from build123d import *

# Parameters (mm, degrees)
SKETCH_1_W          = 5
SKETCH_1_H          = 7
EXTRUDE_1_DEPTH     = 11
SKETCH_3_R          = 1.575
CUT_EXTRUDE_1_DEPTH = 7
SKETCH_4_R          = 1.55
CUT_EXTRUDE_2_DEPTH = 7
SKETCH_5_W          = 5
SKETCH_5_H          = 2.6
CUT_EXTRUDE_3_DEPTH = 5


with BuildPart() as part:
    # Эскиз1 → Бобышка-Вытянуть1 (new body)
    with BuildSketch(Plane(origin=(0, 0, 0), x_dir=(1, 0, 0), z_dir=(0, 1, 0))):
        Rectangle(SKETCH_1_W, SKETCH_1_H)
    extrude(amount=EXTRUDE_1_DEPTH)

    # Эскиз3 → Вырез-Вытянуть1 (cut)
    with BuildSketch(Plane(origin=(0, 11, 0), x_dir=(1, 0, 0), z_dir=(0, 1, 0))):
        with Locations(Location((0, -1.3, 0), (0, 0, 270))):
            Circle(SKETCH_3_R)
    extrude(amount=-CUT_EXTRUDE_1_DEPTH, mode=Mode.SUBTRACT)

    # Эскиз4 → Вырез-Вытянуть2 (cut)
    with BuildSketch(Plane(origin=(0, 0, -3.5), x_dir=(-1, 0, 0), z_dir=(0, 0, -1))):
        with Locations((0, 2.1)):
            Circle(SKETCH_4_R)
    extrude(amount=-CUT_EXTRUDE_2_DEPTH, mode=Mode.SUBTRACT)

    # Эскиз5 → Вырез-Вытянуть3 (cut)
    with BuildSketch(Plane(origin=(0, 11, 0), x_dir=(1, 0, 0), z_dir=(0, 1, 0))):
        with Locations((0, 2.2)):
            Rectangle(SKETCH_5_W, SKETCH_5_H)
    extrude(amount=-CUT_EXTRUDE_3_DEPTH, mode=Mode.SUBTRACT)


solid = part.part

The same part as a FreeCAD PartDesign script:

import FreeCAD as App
import Part
import Sketcher
from FreeCAD import Vector


def add_polygon(sketch, points):
    """Adds a closed chain of lines whose ends are joined by coincident constraints."""
    first, n = sketch.GeometryCount, len(points)
    for a, b in zip(points, points[1:] + points[:1]):
        sketch.addGeometry(Part.LineSegment(App.Vector(*a, 0), App.Vector(*b, 0)), False)
    for i in range(n):
        sketch.addConstraint(Sketcher.Constraint("Coincident", first + i, 2, first + (i + 1) % n, 1))

doc = App.newDocument("Part")
body = doc.addObject("PartDesign::Body", "Body")

sketch1 = doc.addObject("Sketcher::SketchObject", "Sketch")
body.addObject(sketch1)
sketch1.AttachmentSupport = (doc.XZ_Plane, [""])
sketch1.MapMode = "FlatFace"
add_polygon(sketch1, [(-2, -4), (-2, 4), (2, 4), (2, -4)])
sketch1.addConstraint(Sketcher.Constraint("Vertical", 0))
sketch1.addConstraint(Sketcher.Constraint("Horizontal", 1))
sketch1.addConstraint(Sketcher.Constraint("Vertical", 2))
sketch1.addConstraint(Sketcher.Constraint("Horizontal", 3))
sketch1.addConstraint(Sketcher.Constraint("Symmetric", 0, 2, 2, 2, -1, 1))
sketch1.addConstraint(Sketcher.Constraint("DistanceX", 1, 1, 1, 2, 5.0))
sketch1.addConstraint(Sketcher.Constraint("DistanceY", 0, 1, 0, 2, 7.0))
pad1 = doc.addObject("PartDesign::Pad", "Pad")
body.addObject(pad1)
pad1.Profile = sketch1
pad1.Length = 11
pad1.Reversed = True

sketch2 = doc.addObject("Sketcher::SketchObject", "Sketch001")
body.addObject(sketch2)
sketch2.AttachmentSupport = (doc.XZ_Plane, [""])
sketch2.MapMode = "FlatFace"
sketch2.AttachmentOffset = App.Placement(Vector(0, 0, -11), App.Rotation())
sketch2.addGeometry(Part.Circle(Vector(0, 1.3, 0), Vector(0, 0, 1), 1.6), False)
sketch2.addConstraint(Sketcher.Constraint("PointOnObject", 0, 3, -2))
sketch2.addConstraint(Sketcher.Constraint("Diameter", 0, 3.15))
sketch2.addConstraint(Sketcher.Constraint("DistanceY", -1, 1, 0, 3, 1.3))
pocket1 = doc.addObject("PartDesign::Pocket", "Pocket")
body.addObject(pocket1)
pocket1.Profile = sketch2
pocket1.Length = 7
pocket1.Reversed = True

sketch3 = doc.addObject("Sketcher::SketchObject", "Sketch002")
body.addObject(sketch3)
sketch3.AttachmentSupport = (doc.XY_Plane, [""])
sketch3.MapMode = "FlatFace"
sketch3.AttachmentOffset = App.Placement(Vector(0, 0, -3.5), App.Rotation())
sketch3.addGeometry(Part.Circle(Vector(0, 2.1, 0), Vector(0, 0, 1), 1.6), False)
sketch3.addConstraint(Sketcher.Constraint("PointOnObject", 0, 3, -2))
sketch3.addConstraint(Sketcher.Constraint("Diameter", 0, 3.1))
sketch3.addConstraint(Sketcher.Constraint("DistanceY", -1, 1, 0, 3, 2.1))
pocket2 = doc.addObject("PartDesign::Pocket", "Pocket001")
body.addObject(pocket2)
pocket2.Profile = sketch3
pocket2.Length = 7
pocket2.Reversed = True

sketch4 = doc.addObject("Sketcher::SketchObject", "Sketch003")
body.addObject(sketch4)
sketch4.AttachmentSupport = (doc.XZ_Plane, [""])
sketch4.MapMode = "FlatFace"
sketch4.AttachmentOffset = App.Placement(Vector(0, 0, -11), App.Rotation())
add_polygon(sketch4, [(-2.5, -3.5), (-2.5, -0.9), (2.5, -0.9), (2.5, -3.5)])
sketch4.addConstraint(Sketcher.Constraint("Vertical", 0))
sketch4.addConstraint(Sketcher.Constraint("Horizontal", 1))
sketch4.addConstraint(Sketcher.Constraint("Vertical", 2))
sketch4.addConstraint(Sketcher.Constraint("Horizontal", 3))
sketch4.addConstraint(Sketcher.Constraint("DistanceX", 1, 1, 1, 2, 5.0))
sketch4.addConstraint(Sketcher.Constraint("DistanceY", 0, 1, 0, 2, 2.6))
sketch4.addConstraint(Sketcher.Constraint("DistanceX", 0, 2, -1, 1, 2.5))
sketch4.addConstraint(Sketcher.Constraint("DistanceY", 0, 2, -1, 1, 0.9))
pocket3 = doc.addObject("PartDesign::Pocket", "Pocket002")
body.addObject(pocket3)
pocket3.Profile = sketch4
pocket3.Length = 5
pocket3.Reversed = True

doc.recompute()
